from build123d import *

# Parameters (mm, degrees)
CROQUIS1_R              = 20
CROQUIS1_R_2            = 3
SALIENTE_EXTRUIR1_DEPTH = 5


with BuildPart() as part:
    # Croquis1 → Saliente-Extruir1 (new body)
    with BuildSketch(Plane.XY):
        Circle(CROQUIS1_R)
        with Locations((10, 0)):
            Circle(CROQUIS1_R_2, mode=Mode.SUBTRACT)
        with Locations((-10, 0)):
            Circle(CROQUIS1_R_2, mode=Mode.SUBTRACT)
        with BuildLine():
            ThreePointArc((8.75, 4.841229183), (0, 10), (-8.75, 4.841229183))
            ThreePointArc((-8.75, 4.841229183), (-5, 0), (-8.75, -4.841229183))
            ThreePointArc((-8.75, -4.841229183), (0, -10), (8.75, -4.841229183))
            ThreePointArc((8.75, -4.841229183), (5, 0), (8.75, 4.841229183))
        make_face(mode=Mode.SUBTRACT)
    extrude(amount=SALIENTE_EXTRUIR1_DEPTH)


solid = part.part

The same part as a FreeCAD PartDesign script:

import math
import FreeCAD as App
import Part
import Sketcher

V = App.Vector
Q = App.Units.Quantity

doc = App.newDocument("Part")
body = doc.addObject("PartDesign::Body", "Body")

# Sketch on XY plane
sketch1 = body.newObject("Sketcher::SketchObject", "Sketch")
sketch1.AttachmentSupport = (doc.getObject("XY_Plane"), [""])
sketch1.MapMode = "FlatFace"
sketch1.addGeometry([
    Part.Circle(V(0, 0, 0), V(0, 0, 1), 20),  # 0
    Part.Circle(V(-10, 0, 0), V(0, 0, 1), 3),  # 1
    Part.ArcOfCircle(Part.Circle(V(0, 0, 0), V(0, 0, 1), 10), math.radians(28.955024), math.radians(151.044976)),  # 2
    Part.ArcOfCircle(Part.Circle(V(10, 0, 0), V(0, 0, 1), 5), math.radians(104.477512), math.radians(255.522488)),  # 3
    Part.ArcOfCircle(Part.Circle(V(0, 0, 0), V(0, 0, 1), 10), math.radians(-151.044976), math.radians(-28.955024)),  # 4
    Part.ArcOfCircle(Part.Circle(V(-10, 0, 0), V(0, 0, 1), 5), math.radians(-75.522488), math.radians(75.522488)),  # 5
    Part.Circle(V(10, 0, 0), V(0, 0, 1), 3),  # 6
], False)
sketch1.addConstraint([
    Sketcher.Constraint("Coincident", 2, 1, 3, 1),
    Sketcher.Constraint("Coincident", 3, 2, 4, 2),
    Sketcher.Constraint("Coincident", 4, 1, 5, 1),
    Sketcher.Constraint("Coincident", 5, 2, 2, 2),
    Sketcher.Constraint("Coincident", 0, 3, -1, 1),
    Sketcher.Constraint("Coincident", 2, 3, -1, 1),
    Sketcher.Constraint("Coincident", 4, 3, -1, 1),
    Sketcher.Constraint("Coincident", 5, 3, 1, 3),
    Sketcher.Constraint("Coincident", 6, 3, 3, 3),
    Sketcher.Constraint("Equal", 2, 4),
    Sketcher.Constraint("Equal", 3, 5),
    Sketcher.Constraint("Equal", 1, 6),
    Sketcher.Constraint("Symmetric", 1, 3, 3, 3, -1, 1),
    Sketcher.Constraint("PointOnObject", 1, 3, -1),
    Sketcher.Constraint("Diameter", 0, Q("40 mm")),
    Sketcher.Constraint("Diameter", 1, Q("6 mm")),
    Sketcher.Constraint("Radius", 2, Q("10 mm")),
    Sketcher.Constraint("Radius", 3, Q("5 mm")),
    Sketcher.Constraint("DistanceX", 1, 3, -1, 1, Q("10 mm")),
])
pad1 = body.newObject("PartDesign::Pad", "Pad")
pad1.Profile = sketch1
pad1.Length = 5

doc.recompute()
